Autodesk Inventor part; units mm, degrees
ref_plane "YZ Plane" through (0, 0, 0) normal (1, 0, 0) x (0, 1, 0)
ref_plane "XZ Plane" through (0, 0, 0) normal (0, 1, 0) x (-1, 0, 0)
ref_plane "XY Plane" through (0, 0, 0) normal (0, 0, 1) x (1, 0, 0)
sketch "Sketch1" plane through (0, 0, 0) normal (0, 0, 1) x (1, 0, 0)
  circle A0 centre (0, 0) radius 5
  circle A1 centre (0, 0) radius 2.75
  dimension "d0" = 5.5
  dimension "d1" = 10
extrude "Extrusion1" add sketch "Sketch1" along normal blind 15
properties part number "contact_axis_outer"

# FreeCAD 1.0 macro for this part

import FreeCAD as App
import Part
import Sketcher
from FreeCAD import Vector

doc = App.newDocument("Part")
body = doc.addObject("PartDesign::Body", "Body")

sketch1 = body.newObject("Sketcher::SketchObject", "Sketch")
sketch1.AttachmentSupport = (doc.getObject("XY_Plane"), [""])
sketch1.MapMode = "FlatFace"
sketch1.addGeometry([
    Part.Circle(Vector(0, 0, 0), Vector(0, 0, 1), 5),
    Part.Circle(Vector(0, 0, 0), Vector(0, 0, 1), 2.8),
], False)
sketch1.addConstraint([
    Sketcher.Constraint("Coincident", 0, 3, -1, 1),
    Sketcher.Constraint("Coincident", 1, 3, -1, 1),
    Sketcher.Constraint("Diameter", 0, 10.0),
    Sketcher.Constraint("Diameter", 1, 5.5),
])
pad1 = body.newObject("PartDesign::Pad", "Pad")
pad1.Profile = sketch1
pad1.Length = 15

doc.recompute()
